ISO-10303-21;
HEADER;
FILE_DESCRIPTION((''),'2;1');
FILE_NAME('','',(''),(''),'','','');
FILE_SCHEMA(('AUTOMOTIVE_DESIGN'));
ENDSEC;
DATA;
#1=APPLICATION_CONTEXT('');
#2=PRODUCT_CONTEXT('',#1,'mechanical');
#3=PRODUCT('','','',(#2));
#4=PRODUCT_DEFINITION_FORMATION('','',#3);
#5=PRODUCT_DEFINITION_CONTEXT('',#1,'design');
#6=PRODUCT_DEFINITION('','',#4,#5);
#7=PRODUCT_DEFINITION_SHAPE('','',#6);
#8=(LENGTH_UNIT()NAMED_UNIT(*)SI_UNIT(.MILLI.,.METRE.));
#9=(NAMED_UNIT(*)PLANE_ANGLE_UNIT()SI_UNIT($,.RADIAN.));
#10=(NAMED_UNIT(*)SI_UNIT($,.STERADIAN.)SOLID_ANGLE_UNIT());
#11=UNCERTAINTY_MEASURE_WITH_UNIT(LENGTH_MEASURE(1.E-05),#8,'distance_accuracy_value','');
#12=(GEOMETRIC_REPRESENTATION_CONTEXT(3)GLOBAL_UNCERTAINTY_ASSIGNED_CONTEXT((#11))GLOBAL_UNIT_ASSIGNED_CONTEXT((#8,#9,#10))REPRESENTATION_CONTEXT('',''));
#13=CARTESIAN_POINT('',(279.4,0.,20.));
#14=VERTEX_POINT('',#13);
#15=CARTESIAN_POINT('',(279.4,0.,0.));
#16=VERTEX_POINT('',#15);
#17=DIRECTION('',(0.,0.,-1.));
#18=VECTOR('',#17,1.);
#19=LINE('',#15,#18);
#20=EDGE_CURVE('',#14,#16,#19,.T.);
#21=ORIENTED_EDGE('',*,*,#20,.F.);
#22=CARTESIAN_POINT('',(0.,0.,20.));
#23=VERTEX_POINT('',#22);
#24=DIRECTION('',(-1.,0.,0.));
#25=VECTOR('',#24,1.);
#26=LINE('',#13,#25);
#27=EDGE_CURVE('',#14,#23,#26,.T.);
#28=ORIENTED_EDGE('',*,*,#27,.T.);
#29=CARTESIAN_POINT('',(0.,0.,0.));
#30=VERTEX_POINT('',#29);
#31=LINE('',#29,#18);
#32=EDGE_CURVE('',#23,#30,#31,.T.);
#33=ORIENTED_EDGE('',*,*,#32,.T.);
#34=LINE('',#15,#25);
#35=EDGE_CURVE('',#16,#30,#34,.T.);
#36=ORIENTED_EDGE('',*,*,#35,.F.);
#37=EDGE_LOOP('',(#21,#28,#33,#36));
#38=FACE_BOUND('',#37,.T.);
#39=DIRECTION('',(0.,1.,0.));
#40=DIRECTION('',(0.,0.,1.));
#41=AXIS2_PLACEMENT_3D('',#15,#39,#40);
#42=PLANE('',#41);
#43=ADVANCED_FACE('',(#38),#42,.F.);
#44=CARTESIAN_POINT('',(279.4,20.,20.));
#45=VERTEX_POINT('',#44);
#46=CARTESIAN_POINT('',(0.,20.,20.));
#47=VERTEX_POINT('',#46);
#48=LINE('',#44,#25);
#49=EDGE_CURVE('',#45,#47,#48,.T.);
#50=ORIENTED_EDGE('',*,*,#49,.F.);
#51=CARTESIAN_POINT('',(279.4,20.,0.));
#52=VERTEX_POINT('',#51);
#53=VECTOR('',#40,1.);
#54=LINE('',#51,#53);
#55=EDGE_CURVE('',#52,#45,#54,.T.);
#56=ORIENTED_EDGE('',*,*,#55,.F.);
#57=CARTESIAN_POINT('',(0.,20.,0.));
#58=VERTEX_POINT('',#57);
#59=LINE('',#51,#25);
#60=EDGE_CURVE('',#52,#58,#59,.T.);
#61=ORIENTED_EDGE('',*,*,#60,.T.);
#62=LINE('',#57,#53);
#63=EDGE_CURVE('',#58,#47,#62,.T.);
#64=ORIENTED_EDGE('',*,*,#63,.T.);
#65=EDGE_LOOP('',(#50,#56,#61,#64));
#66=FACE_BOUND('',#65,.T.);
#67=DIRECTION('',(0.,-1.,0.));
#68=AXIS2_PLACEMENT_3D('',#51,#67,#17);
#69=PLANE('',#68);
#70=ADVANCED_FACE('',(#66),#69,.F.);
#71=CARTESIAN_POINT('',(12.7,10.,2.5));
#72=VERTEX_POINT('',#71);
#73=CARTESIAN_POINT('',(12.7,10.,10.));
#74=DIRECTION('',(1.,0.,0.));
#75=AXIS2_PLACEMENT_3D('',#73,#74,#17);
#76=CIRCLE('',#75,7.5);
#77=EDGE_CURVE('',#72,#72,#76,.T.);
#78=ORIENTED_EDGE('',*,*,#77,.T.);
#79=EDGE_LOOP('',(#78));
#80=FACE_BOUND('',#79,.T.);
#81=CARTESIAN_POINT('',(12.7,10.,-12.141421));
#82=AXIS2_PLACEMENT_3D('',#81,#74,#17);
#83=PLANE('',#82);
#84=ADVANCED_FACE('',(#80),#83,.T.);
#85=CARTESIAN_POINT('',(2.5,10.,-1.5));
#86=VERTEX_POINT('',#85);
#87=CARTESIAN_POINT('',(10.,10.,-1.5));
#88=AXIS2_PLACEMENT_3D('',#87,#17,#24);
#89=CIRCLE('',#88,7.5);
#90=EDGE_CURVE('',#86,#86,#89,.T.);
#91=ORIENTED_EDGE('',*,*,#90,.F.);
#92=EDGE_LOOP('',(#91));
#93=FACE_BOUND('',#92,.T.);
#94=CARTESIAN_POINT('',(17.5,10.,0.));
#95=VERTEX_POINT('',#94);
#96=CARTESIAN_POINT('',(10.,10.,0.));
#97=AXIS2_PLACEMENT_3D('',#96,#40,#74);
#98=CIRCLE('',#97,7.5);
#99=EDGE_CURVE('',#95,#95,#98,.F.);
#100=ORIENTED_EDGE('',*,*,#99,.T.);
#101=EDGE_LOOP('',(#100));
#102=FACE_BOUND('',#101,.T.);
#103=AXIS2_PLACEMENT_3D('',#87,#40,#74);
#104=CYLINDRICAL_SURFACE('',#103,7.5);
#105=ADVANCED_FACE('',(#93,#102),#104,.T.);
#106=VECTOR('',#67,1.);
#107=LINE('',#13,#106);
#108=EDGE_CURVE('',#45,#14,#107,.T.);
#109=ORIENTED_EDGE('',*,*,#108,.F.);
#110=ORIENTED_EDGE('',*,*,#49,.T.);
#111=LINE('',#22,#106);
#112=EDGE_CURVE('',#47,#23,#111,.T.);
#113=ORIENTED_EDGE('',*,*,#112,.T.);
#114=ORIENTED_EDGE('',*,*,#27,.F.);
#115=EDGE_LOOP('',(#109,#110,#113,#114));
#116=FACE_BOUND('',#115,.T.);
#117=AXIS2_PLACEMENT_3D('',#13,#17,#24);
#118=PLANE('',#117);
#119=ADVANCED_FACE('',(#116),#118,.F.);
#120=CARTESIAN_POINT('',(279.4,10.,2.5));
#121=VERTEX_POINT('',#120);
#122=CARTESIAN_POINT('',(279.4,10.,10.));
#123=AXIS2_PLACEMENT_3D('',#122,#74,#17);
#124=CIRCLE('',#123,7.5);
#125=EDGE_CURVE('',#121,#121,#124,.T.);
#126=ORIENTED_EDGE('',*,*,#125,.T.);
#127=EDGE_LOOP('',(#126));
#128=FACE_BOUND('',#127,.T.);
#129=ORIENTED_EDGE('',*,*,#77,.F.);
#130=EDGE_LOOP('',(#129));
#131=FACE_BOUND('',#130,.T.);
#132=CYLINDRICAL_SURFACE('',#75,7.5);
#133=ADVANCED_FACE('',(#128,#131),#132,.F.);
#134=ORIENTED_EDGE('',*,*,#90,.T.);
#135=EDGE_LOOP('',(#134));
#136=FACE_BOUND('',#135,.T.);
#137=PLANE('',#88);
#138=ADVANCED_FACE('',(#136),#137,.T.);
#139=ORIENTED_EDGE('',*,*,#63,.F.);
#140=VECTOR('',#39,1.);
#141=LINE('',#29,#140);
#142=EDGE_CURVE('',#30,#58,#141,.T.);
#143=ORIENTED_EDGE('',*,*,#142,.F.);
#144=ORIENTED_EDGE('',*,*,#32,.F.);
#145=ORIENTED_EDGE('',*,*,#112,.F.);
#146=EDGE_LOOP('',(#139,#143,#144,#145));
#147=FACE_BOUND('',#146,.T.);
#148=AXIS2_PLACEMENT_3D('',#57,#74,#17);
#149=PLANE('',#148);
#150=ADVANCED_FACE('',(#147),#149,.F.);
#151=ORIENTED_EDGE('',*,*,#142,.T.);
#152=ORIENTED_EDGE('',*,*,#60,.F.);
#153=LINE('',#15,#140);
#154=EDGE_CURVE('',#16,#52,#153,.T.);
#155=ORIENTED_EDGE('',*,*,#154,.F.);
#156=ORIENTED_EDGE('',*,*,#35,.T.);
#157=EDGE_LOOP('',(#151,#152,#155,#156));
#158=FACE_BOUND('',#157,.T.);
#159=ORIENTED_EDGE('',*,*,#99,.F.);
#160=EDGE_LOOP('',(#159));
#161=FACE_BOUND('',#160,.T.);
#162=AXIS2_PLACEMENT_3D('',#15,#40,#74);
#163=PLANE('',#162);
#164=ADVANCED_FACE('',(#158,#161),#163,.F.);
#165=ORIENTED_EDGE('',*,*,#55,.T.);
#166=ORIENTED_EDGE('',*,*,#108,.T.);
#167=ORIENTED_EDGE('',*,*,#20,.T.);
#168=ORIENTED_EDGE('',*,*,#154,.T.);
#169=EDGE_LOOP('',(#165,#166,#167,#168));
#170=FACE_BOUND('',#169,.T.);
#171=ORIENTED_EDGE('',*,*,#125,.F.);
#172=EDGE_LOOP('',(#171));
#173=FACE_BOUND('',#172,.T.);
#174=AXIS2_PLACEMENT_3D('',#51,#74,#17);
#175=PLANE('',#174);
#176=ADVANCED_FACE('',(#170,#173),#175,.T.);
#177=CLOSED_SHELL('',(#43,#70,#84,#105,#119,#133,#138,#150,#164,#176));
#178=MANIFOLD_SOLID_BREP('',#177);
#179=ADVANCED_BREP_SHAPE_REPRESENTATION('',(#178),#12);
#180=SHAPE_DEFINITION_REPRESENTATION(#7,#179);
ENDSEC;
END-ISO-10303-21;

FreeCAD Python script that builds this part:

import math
import FreeCAD as App
import Part
import Sketcher
from FreeCAD import Vector
Q = App.Units.Quantity


def add_polygon(sketch, points):
    """Adds a closed chain of lines whose ends are joined by coincident constraints."""
    first, n = sketch.GeometryCount, len(points)
    for a, b in zip(points, points[1:] + points[:1]):
        sketch.addGeometry(Part.LineSegment(App.Vector(*a, 0), App.Vector(*b, 0)), False)
    for i in range(n):
        sketch.addConstraint(Sketcher.Constraint("Coincident", first + i, 2, first + (i + 1) % n, 1))

doc = App.newDocument("Part")
body = doc.addObject("PartDesign::Body", "Body")

sketch1 = body.newObject("Sketcher::SketchObject", "Sketch")
sketch1.AttachmentSupport = (doc.getObject("YZ_Plane"), [""])
sketch1.MapMode = "FlatFace"
add_polygon(sketch1, [(20, 20), (0, 20), (0, 0), (20, 0)])
sketch1.addConstraint([
    Sketcher.Constraint("Horizontal", 0),
    Sketcher.Constraint("Vertical", 1),
    Sketcher.Constraint("Horizontal", 2),
    Sketcher.Constraint("Vertical", 3),
    Sketcher.Constraint("Coincident", 1, 2, -1, 1),
    Sketcher.Constraint("Equal", 2, 1),
    Sketcher.Constraint("DistanceX", 0, 2, 0, 1, Q("20 mm")),
])
pad1 = body.newObject("PartDesign::Pad", "Pad")
pad1.Profile = sketch1
pad1.Length = 279.4

sketch2 = body.newObject("Sketcher::SketchObject", "Sketch001")
sketch2.AttachmentSupport = (doc.getObject("XY_Plane"), [""])
sketch2.MapMode = "FlatFace"
sketch2.addGeometry(Part.Circle(Vector(10, 10, 0), Vector(0, 0, 1), 8), False)
sketch2.addConstraint([
    Sketcher.Constraint("Diameter", 0, Q("15 mm")),
    Sketcher.Constraint("DistanceX", -1, 1, 0, 3, Q("10 mm")),
    Sketcher.Constraint("DistanceY", -1, 1, 0, 3, Q("10 mm")),
])
pad2 = body.newObject("PartDesign::Pad", "Pad001")
pad2.Profile = sketch2
pad2.Length = 1.5
pad2.Reversed = True

sketch3 = body.newObject("Sketcher::SketchObject", "Sketch002")
sketch3.AttachmentSupport = (doc.getObject("YZ_Plane"), [""])
sketch3.MapMode = "FlatFace"
sketch3.AttachmentOffset = App.Placement(Vector(0, 0, 279.4), App.Rotation())
sketch3.addGeometry([
    Part.ArcOfCircle(Part.Circle(Vector(10, 10, 0), Vector(0, 0, 1), 7), math.radians(-90), math.radians(-45)),
    Part.ArcOfCircle(Part.Circle(Vector(10, 10, 0), Vector(0, 0, 1), 8), math.radians(-45), math.radians(135)),
    Part.ArcOfCircle(Part.Circle(Vector(10, 10, 0), Vector(0, 0, 1), 8), math.radians(135), math.radians(270)),
], False)
sketch3.addConstraint([
    Sketcher.Constraint("Tangent", 0, 2, 1, 1),
    Sketcher.Constraint("Tangent", 1, 2, 2, 1),
    Sketcher.Constraint("Tangent", 2, 2, 0, 1),
    Sketcher.Constraint("Vertical", 1, 3, 2, 2),
    Sketcher.Constraint("Radius", 0, Q("7.5 mm")),
    Sketcher.Constraint("DistanceX", -1, 1, 0, 3, Q("10 mm")),
    Sketcher.Constraint("DistanceY", -1, 1, 0, 3, Q("10 mm")),
    Sketcher.Constraint("DistanceX", -1, 1, 0, 2, Q("15.303301 mm")),
    Sketcher.Constraint("DistanceX", -1, 1, 1, 2, Q("4.696699 mm")),
])
pocket1 = body.newObject("PartDesign::Pocket", "Pocket")
pocket1.Profile = sketch3
pocket1.Length = 266.7

doc.recompute()
